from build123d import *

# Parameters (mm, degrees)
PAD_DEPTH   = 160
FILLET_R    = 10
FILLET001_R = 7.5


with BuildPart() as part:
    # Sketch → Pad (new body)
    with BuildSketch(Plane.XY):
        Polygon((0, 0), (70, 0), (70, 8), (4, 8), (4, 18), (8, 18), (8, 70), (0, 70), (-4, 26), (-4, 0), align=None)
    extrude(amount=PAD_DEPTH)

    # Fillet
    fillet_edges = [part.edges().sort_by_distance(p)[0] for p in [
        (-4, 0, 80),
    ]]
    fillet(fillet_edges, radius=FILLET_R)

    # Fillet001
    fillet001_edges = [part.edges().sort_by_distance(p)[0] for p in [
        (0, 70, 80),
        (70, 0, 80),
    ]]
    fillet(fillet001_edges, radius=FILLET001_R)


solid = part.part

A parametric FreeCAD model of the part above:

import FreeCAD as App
import Part
import Sketcher
from FreeCAD import Vector


def edges_at(feature, points):
    """Names of the edges that pass closest to the given points."""
    edges = feature.Shape.Edges
    near = lambda p: min(range(len(edges)), key=lambda i: edges[i].distToShape(Part.Vertex(*p))[0])
    return sorted({f"Edge{near(p) + 1}" for p in points})

doc = App.newDocument("Part")
params = doc.addObject("Spreadsheet::Sheet", "Params")
for row, (alias, value) in enumerate([
    ("sketch1_width", "66 mm"),
    ("sketch1_width2", "4 mm"),
    ("sketch1_width3", "8 mm"),
    ("sketch1_width4", "74 mm"),
    ("sketch1_height", "10 mm"),
    ("pad1_length", "160 mm"),
    ("fillet_radius", "10 mm"),
    ("fillet2_radius", "7.5 mm"),
], start=1):
    params.set(f"A{row}", alias)
    params.set(f"B{row}", "=" + value)
    params.setAlias(f"B{row}", alias)

body = doc.addObject("PartDesign::Body", "Body")

# Sketch on XY plane
sketch1 = body.newObject("Sketcher::SketchObject", "Sketch")
sketch1.AttachmentSupport = (doc.getObject("XY_Plane"), [""])
sketch1.MapMode = "FlatFace"
sketch1.addGeometry(Part.LineSegment(Vector(70, 0, 0), Vector(70, 8, 0)), False)
sketch1.addGeometry(Part.LineSegment(Vector(70, 8, 0), Vector(4, 8, 0)), False)
sketch1.addGeometry(Part.LineSegment(Vector(4, 8, 0), Vector(4, 18, 0)), False)
sketch1.addGeometry(Part.LineSegment(Vector(4, 18, 0), Vector(8, 18, 0)), False)
sketch1.addGeometry(Part.LineSegment(Vector(8, 18, 0), Vector(8, 70, 0)), False)
sketch1.addGeometry(Part.LineSegment(Vector(8, 70, 0), Vector(0, 70, 0)), False)
sketch1.addGeometry(Part.LineSegment(Vector(0, 70, 0), Vector(-4, 26, 0)), False)
sketch1.addGeometry(Part.LineSegment(Vector(-4, 26, 0), Vector(-4, 0, 0)), False)
sketch1.addGeometry(Part.LineSegment(Vector(-4, 0, 0), Vector(70, 0, 0)), False)
sketch1.addConstraint(Sketcher.Constraint("Coincident", 0, 2, 1, 1))
sketch1.addConstraint(Sketcher.Constraint("Coincident", 1, 2, 2, 1))
sketch1.addConstraint(Sketcher.Constraint("Coincident", 2, 2, 3, 1))
sketch1.addConstraint(Sketcher.Constraint("Coincident", 3, 2, 4, 1))
sketch1.addConstraint(Sketcher.Constraint("Coincident", 4, 2, 5, 1))
sketch1.addConstraint(Sketcher.Constraint("Coincident", 5, 2, 6, 1))
sketch1.addConstraint(Sketcher.Constraint("Coincident", 6, 2, 7, 1))
sketch1.addConstraint(Sketcher.Constraint("Coincident", 7, 2, 8, 1))
sketch1.addConstraint(Sketcher.Constraint("Coincident", 8, 2, 0, 1))
sketch1.addConstraint(Sketcher.Constraint("Vertical", 0))
sketch1.addConstraint(Sketcher.Constraint("Horizontal", 1))
sketch1.addConstraint(Sketcher.Constraint("Vertical", 2))
sketch1.addConstraint(Sketcher.Constraint("Horizontal", 3))
sketch1.addConstraint(Sketcher.Constraint("Vertical", 4))
sketch1.addConstraint(Sketcher.Constraint("Horizontal", 5))
sketch1.addConstraint(Sketcher.Constraint("Vertical", 7))
sketch1.addConstraint(Sketcher.Constraint("Horizontal", 8))
sketch1.addConstraint(Sketcher.Constraint("PointOnObject", 5, 2, -2))
sketch1.addConstraint(Sketcher.Constraint("PointOnObject", 7, 2, -1))
sketch1.addConstraint(Sketcher.Constraint("Equal", 5, 0))
sketch1.addConstraint(Sketcher.Constraint("DistanceX", 1, 2, 1, 1, 66.0))
sketch1.addConstraint(Sketcher.Constraint("DistanceX", 3, 1, 3, 2, 4.0))
sketch1.addConstraint(Sketcher.Constraint("DistanceX", 5, 2, 5, 1, 8.0))
sketch1.addConstraint(Sketcher.Constraint("DistanceX", 8, 1, 8, 2, 74.0))
sketch1.addConstraint(Sketcher.Constraint("DistanceY", 2, 1, 2, 2, 10.0))
sketch1.addConstraint(Sketcher.Constraint("DistanceY", 4, 1, 4, 2, 52.0))
sketch1.addConstraint(Sketcher.Constraint("DistanceY", 7, 2, 7, 1, 26.0))
sketch1.setExpression("Constraints[20]", "Params.sketch1_width")
sketch1.setExpression("Constraints[21]", "Params.sketch1_width2")
sketch1.setExpression("Constraints[22]", "Params.sketch1_width3")
sketch1.setExpression("Constraints[23]", "Params.sketch1_width4")
sketch1.setExpression("Constraints[24]", "Params.sketch1_height")
pad1 = body.newObject("PartDesign::Pad", "Pad")
pad1.Profile = sketch1
pad1.setExpression("Length", "Params.pad1_length")
doc.recompute()

fillet = body.newObject("PartDesign::Fillet", "Fillet")
fillet.Base = (pad1, edges_at(pad1, [(-4, 0, 80)]))
fillet.setExpression("Radius", "Params.fillet_radius")
doc.recompute()

fillet2 = body.newObject("PartDesign::Fillet", "Fillet001")
fillet2.Base = (fillet, edges_at(fillet, [(0, 70, 80), (70, 0, 80)]))
fillet2.setExpression("Radius", "Params.fillet2_radius")

doc.recompute()
